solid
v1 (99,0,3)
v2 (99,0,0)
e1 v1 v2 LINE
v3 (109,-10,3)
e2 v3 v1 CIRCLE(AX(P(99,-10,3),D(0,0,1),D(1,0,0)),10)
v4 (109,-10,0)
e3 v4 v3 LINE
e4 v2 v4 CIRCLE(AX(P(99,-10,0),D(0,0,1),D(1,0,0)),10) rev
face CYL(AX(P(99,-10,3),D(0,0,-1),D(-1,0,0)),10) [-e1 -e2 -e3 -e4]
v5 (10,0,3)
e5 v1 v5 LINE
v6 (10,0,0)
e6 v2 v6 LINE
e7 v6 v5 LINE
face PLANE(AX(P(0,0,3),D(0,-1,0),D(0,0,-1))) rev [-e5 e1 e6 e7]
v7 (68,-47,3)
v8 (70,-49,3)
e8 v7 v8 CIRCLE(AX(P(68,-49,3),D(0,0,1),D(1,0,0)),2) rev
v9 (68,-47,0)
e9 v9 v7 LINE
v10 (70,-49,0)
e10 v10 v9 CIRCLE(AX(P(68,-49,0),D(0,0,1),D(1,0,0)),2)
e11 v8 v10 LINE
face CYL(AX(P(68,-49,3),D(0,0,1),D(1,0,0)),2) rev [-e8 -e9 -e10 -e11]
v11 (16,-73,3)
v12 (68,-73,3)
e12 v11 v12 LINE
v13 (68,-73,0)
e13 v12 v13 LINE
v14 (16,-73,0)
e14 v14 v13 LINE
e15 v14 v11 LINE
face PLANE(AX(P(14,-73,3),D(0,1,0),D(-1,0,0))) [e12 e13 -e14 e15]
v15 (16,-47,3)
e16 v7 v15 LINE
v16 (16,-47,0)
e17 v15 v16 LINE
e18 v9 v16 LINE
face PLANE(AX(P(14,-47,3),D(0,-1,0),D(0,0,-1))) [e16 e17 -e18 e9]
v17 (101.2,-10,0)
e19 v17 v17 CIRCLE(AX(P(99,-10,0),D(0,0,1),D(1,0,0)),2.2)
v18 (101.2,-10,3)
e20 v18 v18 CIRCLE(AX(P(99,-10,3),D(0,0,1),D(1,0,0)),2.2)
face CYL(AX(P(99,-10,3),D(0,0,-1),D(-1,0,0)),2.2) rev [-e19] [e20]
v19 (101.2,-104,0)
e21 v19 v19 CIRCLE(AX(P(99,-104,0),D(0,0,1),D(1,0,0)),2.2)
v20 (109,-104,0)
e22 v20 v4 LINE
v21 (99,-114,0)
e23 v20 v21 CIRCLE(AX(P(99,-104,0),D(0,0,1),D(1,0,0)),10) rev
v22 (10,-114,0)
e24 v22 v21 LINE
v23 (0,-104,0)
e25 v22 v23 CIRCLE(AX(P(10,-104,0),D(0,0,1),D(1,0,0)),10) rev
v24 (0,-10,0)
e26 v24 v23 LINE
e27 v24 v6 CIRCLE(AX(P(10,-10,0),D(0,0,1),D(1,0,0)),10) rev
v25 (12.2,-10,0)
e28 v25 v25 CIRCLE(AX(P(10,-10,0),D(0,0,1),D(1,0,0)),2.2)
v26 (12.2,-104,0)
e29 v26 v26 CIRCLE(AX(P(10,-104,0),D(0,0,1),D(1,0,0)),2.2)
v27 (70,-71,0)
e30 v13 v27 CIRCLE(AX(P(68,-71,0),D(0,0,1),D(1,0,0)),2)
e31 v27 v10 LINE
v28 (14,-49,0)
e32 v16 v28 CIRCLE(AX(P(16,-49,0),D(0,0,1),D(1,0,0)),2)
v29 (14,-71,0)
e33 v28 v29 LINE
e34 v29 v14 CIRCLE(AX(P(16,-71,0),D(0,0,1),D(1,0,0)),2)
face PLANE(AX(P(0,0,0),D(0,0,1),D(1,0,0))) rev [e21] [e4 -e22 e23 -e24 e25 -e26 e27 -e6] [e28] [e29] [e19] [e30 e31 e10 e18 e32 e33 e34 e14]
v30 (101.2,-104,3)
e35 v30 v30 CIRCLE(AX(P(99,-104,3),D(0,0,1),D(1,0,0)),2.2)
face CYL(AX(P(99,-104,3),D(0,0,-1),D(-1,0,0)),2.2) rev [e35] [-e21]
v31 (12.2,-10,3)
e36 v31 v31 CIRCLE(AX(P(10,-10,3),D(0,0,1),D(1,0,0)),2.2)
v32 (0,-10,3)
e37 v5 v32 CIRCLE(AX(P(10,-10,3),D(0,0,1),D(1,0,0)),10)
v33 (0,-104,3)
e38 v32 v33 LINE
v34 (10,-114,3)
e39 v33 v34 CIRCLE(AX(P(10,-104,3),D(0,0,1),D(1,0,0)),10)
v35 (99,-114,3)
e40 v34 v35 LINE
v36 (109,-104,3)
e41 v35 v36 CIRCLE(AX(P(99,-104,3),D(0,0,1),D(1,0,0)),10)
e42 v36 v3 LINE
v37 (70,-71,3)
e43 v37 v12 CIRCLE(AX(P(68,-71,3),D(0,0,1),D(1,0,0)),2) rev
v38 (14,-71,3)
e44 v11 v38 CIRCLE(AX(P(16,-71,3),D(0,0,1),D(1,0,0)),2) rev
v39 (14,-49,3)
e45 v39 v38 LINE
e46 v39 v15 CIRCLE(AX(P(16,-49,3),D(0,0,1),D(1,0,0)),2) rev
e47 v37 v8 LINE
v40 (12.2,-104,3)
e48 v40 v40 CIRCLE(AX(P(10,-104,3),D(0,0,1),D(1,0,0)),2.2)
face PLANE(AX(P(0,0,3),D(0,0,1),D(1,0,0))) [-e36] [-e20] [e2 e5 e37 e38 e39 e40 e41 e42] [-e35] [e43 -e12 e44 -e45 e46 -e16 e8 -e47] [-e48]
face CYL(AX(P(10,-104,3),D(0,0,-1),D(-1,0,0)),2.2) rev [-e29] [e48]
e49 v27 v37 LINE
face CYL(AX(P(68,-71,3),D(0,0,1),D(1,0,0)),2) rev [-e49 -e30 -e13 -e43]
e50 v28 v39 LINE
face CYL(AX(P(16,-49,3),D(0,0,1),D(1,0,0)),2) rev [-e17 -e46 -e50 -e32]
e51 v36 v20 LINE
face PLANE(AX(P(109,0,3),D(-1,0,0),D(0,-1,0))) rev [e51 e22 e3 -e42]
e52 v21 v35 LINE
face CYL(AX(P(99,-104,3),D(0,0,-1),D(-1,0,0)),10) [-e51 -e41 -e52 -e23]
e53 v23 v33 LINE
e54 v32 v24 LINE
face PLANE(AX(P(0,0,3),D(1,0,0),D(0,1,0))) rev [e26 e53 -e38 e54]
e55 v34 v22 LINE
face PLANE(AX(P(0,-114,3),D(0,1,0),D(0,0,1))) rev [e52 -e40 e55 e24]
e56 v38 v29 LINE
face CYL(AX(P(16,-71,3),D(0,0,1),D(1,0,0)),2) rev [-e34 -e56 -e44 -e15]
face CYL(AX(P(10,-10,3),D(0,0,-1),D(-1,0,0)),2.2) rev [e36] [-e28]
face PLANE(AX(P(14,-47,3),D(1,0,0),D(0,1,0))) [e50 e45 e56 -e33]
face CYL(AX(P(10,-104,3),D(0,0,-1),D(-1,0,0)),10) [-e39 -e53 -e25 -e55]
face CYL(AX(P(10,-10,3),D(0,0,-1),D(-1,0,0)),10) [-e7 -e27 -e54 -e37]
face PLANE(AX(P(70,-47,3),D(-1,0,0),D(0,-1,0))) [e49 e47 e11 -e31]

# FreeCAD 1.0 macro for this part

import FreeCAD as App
import Part
import Sketcher
from FreeCAD import Vector
Q = App.Units.Quantity


def edges_at(feature, points):
    """Names of the edges that pass closest to the given points."""
    edges = feature.Shape.Edges
    near = lambda p: min(range(len(edges)), key=lambda i: edges[i].distToShape(Part.Vertex(*p))[0])
    return sorted({f"Edge{near(p) + 1}" for p in points})

doc = App.newDocument("Part")
params = doc.addObject("Spreadsheet::Sheet", "Params")
for row, (alias, value) in enumerate([
    ("sketch1_diameter", "4.4 mm"),
    ("sketch1_width", "109 mm"),
    ("sketch1_width2", "56 mm"),
    ("sketch1_height", "114 mm"),
    ("sketch1_height2", "26 mm"),
    ("pad1_length", "3 mm"),
    ("fillet_radius", "2 mm"),
    ("fillet2_radius", "10 mm"),
], start=1):
    params.set(f"A{row}", alias)
    params.set(f"B{row}", "=" + value)
    params.setAlias(f"B{row}", alias)

body = doc.addObject("PartDesign::Body", "Body")

# Sketch on XY plane
sketch1 = body.newObject("Sketcher::SketchObject", "Sketch")
sketch1.AttachmentSupport = (doc.getObject("XY_Plane"), [""])
sketch1.MapMode = "FlatFace"
sketch1.addGeometry(Part.LineSegment(Vector(0, 0, 0), Vector(0, -114, 0)), False)
sketch1.addGeometry(Part.LineSegment(Vector(0, -114, 0), Vector(109, -114, 0)), False)
sketch1.addGeometry(Part.LineSegment(Vector(109, -114, 0), Vector(109, 0, 0)), False)
sketch1.addGeometry(Part.LineSegment(Vector(109, 0, 0), Vector(0, 0, 0)), False)
sketch1.addGeometry(Part.Circle(Vector(10, -104, 0), Vector(0, 0, 1), 2.2), False)
sketch1.addGeometry(Part.LineSegment(Vector(70, -73, 0), Vector(14, -73, 0)), False)
sketch1.addGeometry(Part.LineSegment(Vector(14, -73, 0), Vector(14, -47, 0)), False)
sketch1.addGeometry(Part.LineSegment(Vector(14, -47, 0), Vector(70, -47, 0)), False)
sketch1.addGeometry(Part.LineSegment(Vector(70, -47, 0), Vector(70, -73, 0)), False)
sketch1.addGeometry(Part.Circle(Vector(99, -104, 0), Vector(0, 0, 1), 2.2), False)
sketch1.addGeometry(Part.Circle(Vector(10, -10, 0), Vector(0, 0, 1), 2.2), False)
sketch1.addGeometry(Part.Circle(Vector(99, -10, 0), Vector(0, 0, 1), 2.2), False)
sketch1.addConstraint(Sketcher.Constraint("Coincident", 0, 2, 1, 1))
sketch1.addConstraint(Sketcher.Constraint("Coincident", 1, 2, 2, 1))
sketch1.addConstraint(Sketcher.Constraint("Coincident", 2, 2, 3, 1))
sketch1.addConstraint(Sketcher.Constraint("Coincident", 3, 2, 0, 1))
sketch1.addConstraint(Sketcher.Constraint("Coincident", 5, 2, 6, 1))
sketch1.addConstraint(Sketcher.Constraint("Coincident", 6, 2, 7, 1))
sketch1.addConstraint(Sketcher.Constraint("Coincident", 7, 2, 8, 1))
sketch1.addConstraint(Sketcher.Constraint("Coincident", 8, 2, 5, 1))
sketch1.addConstraint(Sketcher.Constraint("Vertical", 0))
sketch1.addConstraint(Sketcher.Constraint("Horizontal", 1))
sketch1.addConstraint(Sketcher.Constraint("Vertical", 2))
sketch1.addConstraint(Sketcher.Constraint("Horizontal", 3))
sketch1.addConstraint(Sketcher.Constraint("Horizontal", 5))
sketch1.addConstraint(Sketcher.Constraint("Vertical", 6))
sketch1.addConstraint(Sketcher.Constraint("Horizontal", 7))
sketch1.addConstraint(Sketcher.Constraint("Vertical", 8))
sketch1.addConstraint(Sketcher.Constraint("Coincident", 3, 2, -1, 1))
sketch1.addConstraint(Sketcher.Constraint("Equal", 4, 9))
sketch1.addConstraint(Sketcher.Constraint("Equal", 9, 10))
sketch1.addConstraint(Sketcher.Constraint("Equal", 10, 11))
sketch1.addConstraint(Sketcher.Constraint("Horizontal", 4, 3, 9, 3))
sketch1.addConstraint(Sketcher.Constraint("Horizontal", 10, 3, 11, 3))
sketch1.addConstraint(Sketcher.Constraint("Vertical", 4, 3, 10, 3))
sketch1.addConstraint(Sketcher.Constraint("Vertical", 9, 3, 11, 3))
sketch1.addConstraint(Sketcher.Constraint("Diameter", 4, Q("4.4 mm")))
sketch1.addConstraint(Sketcher.Constraint("DistanceX", 1, 1, 1, 2, Q("109 mm")))
sketch1.addConstraint(Sketcher.Constraint("DistanceX", 5, 2, 5, 1, Q("56 mm")))
sketch1.addConstraint(Sketcher.Constraint("DistanceY", 0, 2, 0, 1, Q("114 mm")))
sketch1.addConstraint(Sketcher.Constraint("DistanceY", 6, 1, 6, 2, Q("26 mm")))
sketch1.addConstraint(Sketcher.Constraint("DistanceX", -1, 1, 4, 3, Q("10 mm")))
sketch1.addConstraint(Sketcher.Constraint("DistanceY", 4, 3, -1, 1, Q("104 mm")))
sketch1.addConstraint(Sketcher.Constraint("DistanceX", -1, 1, 9, 3, Q("99 mm")))
sketch1.addConstraint(Sketcher.Constraint("DistanceY", 10, 3, -1, 1, Q("10 mm")))
sketch1.addConstraint(Sketcher.Constraint("DistanceX", -1, 1, 5, 2, Q("14 mm")))
sketch1.addConstraint(Sketcher.Constraint("DistanceY", 5, 2, -1, 1, Q("73 mm")))
sketch1.setExpression("Constraints[24]", "Params.sketch1_diameter")
sketch1.setExpression("Constraints[25]", "Params.sketch1_width")
sketch1.setExpression("Constraints[26]", "Params.sketch1_width2")
sketch1.setExpression("Constraints[27]", "Params.sketch1_height")
sketch1.setExpression("Constraints[28]", "Params.sketch1_height2")
pad1 = body.newObject("PartDesign::Pad", "Pad")
pad1.Profile = sketch1
pad1.setExpression("Length", "Params.pad1_length")
doc.recompute()

fillet = body.newObject("PartDesign::Fillet", "Fillet")
fillet.Base = (pad1, edges_at(pad1, [
    (14, -47, 1.5),
    (14, -73, 1.5),
    (70, -73, 1.5),
    (70, -47, 1.5),
]))
fillet.setExpression("Radius", "Params.fillet_radius")
doc.recompute()

fillet2 = body.newObject("PartDesign::Fillet", "Fillet001")
fillet2.Base = (fillet, edges_at(fillet, [
    (0, 0, 1.5),
    (109, 0, 1.5),
    (109, -114, 1.5),
    (0, -114, 1.5),
]))
fillet2.setExpression("Radius", "Params.fillet2_radius")

doc.recompute()
